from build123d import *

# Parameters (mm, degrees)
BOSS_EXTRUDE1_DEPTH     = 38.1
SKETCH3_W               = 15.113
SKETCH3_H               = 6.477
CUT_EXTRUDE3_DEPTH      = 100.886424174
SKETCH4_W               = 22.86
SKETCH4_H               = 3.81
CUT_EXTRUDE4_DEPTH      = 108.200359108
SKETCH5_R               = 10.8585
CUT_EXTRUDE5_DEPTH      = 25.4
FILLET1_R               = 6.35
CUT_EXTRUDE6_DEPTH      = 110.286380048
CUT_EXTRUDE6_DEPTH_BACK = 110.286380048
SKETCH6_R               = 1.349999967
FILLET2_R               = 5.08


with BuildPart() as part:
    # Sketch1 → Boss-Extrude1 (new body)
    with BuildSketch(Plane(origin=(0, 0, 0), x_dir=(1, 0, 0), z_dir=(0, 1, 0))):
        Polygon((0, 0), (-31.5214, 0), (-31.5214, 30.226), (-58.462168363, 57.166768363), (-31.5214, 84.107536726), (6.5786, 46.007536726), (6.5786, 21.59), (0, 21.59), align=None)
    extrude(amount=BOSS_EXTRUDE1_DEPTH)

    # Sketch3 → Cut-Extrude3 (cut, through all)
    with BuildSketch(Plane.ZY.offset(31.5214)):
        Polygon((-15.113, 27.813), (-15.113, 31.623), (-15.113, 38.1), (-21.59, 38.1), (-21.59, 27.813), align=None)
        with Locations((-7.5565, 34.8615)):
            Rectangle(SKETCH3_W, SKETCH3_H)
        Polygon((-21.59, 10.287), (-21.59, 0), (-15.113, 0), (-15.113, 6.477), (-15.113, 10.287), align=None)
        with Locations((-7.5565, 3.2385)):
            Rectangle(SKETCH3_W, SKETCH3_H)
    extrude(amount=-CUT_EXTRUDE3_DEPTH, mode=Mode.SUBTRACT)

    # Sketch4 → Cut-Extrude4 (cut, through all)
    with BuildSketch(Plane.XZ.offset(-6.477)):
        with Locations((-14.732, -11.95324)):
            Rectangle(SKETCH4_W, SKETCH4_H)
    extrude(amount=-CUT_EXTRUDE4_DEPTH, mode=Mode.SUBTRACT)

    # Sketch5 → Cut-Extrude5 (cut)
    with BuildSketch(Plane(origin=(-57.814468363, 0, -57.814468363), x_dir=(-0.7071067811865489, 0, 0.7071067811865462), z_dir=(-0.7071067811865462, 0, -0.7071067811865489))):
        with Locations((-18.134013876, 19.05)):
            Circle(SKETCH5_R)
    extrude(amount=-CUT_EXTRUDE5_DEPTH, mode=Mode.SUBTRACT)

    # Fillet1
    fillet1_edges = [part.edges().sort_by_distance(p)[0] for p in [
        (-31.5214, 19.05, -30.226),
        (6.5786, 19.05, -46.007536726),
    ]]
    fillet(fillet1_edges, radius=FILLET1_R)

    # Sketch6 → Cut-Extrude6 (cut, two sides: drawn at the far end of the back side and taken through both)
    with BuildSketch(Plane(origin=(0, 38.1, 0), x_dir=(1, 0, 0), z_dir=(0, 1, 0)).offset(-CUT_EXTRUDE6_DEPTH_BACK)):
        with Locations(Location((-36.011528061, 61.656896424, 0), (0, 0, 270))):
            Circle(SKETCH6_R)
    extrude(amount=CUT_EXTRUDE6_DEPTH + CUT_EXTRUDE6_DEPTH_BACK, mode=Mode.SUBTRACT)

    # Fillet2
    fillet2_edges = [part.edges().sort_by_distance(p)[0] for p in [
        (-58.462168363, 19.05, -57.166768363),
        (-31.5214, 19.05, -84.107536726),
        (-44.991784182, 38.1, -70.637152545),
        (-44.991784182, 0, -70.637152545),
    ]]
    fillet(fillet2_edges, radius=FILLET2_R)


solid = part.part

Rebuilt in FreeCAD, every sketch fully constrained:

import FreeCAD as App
import Part
import Sketcher

V = App.Vector
Q = App.Units.Quantity


def edges_at(feature, points):
    """Names of the edges that pass closest to the given points."""
    edges = feature.Shape.Edges
    near = lambda p: min(range(len(edges)), key=lambda i: edges[i].distToShape(Part.Vertex(*p))[0])
    return sorted({f"Edge{near(p) + 1}" for p in points})


def add_polygon(sketch, points):
    """Adds a closed chain of lines whose ends are joined by coincident constraints."""
    first, n = sketch.GeometryCount, len(points)
    for a, b in zip(points, points[1:] + points[:1]):
        sketch.addGeometry(Part.LineSegment(App.Vector(*a, 0), App.Vector(*b, 0)), False)
    for i in range(n):
        sketch.addConstraint(Sketcher.Constraint("Coincident", first + i, 2, first + (i + 1) % n, 1))

doc = App.newDocument("Part")
body = doc.addObject("PartDesign::Body", "Body")

# Sketch on XZ plane
sketch1 = body.newObject("Sketcher::SketchObject", "Sketch")
sketch1.AttachmentSupport = (doc.getObject("XZ_Plane"), [""])
sketch1.MapMode = "FlatFace"
add_polygon(sketch1, [(-31.5214, 0), (0, 0), (0, -21.59), (6.5786, -21.59), (6.5786, -46.007537), (-31.5214, -84.107537), (-58.462168, -57.166768), (-31.5214, -30.226)])  # lines 0-7
sketch1.addConstraint([
    Sketcher.Constraint("Horizontal", 0),
    Sketcher.Constraint("Vertical", 1),
    Sketcher.Constraint("Horizontal", 2),
    Sketcher.Constraint("Vertical", 3),
    Sketcher.Constraint("Vertical", 7),
    Sketcher.Constraint("Coincident", 0, 2, -1, 1),
    Sketcher.Constraint("Perpendicular", 4, 5),
    Sketcher.Constraint("Perpendicular", 5, 6),
    Sketcher.Constraint("Vertical", 4, 2, 6, 2),
    Sketcher.Constraint("Equal", 5, 6),
    Sketcher.Constraint("Distance", 5, Q("1.5 in")),
    Sketcher.Constraint("DistanceY", 1, 2, 1, 1, Q("0.85 in")),
    Sketcher.Constraint("DistanceY", 7, 1, 7, 2, Q("1.19 in")),
    Sketcher.Constraint("DistanceX", 4, 2, 3, 2, Q("1.5 in")),
    Sketcher.Constraint("DistanceX", 0, 1, 0, 2, Q("1.241 in")),
])
pad1 = body.newObject("PartDesign::Pad", "Pad")
pad1.Profile = sketch1
pad1.Length = Q("1.5 in")
pad1.Reversed = True

# Sketch on YZ plane
sketch2 = body.newObject("Sketcher::SketchObject", "Sketch001")
sketch2.AttachmentSupport = (doc.getObject("YZ_Plane"), [""])
sketch2.MapMode = "FlatFace"
sketch2.AttachmentOffset = App.Placement(V(0, 0, -1.241 * 25.4), App.Rotation())
add_polygon(sketch2, [(27.813, -15.113), (31.623, -15.113), (31.623, 0), (38.1, 0), (38.1, -21.59), (27.813, -21.59)])  # lines 0-5
add_polygon(sketch2, [(10.287, -21.59), (0, -21.59), (0, 0), (6.477, 0), (6.477, -15.113), (10.287, -15.113)])  # lines 6-11
sketch2.addConstraint([
    Sketcher.Constraint("Horizontal", 0),
    Sketcher.Constraint("Vertical", 1),
    Sketcher.Constraint("Horizontal", 2),
    Sketcher.Constraint("Vertical", 3),
    Sketcher.Constraint("Horizontal", 4),
    Sketcher.Constraint("Vertical", 5),
    Sketcher.Constraint("Horizontal", 6),
    Sketcher.Constraint("Vertical", 7),
    Sketcher.Constraint("Horizontal", 8),
    Sketcher.Constraint("Vertical", 9),
    Sketcher.Constraint("Horizontal", 10),
    Sketcher.Constraint("Vertical", 11),
    Sketcher.Constraint("Coincident", 7, 2, -1, 1),
    Sketcher.Constraint("PointOnObject", 1, 2, -1),
    Sketcher.Constraint("Horizontal", 4, 2, 6, 2),
    Sketcher.Constraint("Horizontal", 5, 2, 9, 2),
    Sketcher.Constraint("Equal", 4, 6),
    Sketcher.Constraint("Equal", 2, 8),
    Sketcher.Constraint("Equal", 8, 5),
    Sketcher.Constraint("DistanceX", 0, 1, 0, 2, Q("0.15 in")),
    Sketcher.Constraint("DistanceY", 3, 2, 3, 1, Q("0.85 in")),
    Sketcher.Constraint("DistanceX", -1, 1, 2, 2, Q("1.5 in")),
    Sketcher.Constraint("DistanceX", 2, 1, 2, 2, Q("0.255 in")),
])
pocket1 = body.newObject("PartDesign::Pocket", "Pocket")
pocket1.Profile = sketch2
pocket1.Type = "ThroughAll"
pocket1.Reversed = True

# Sketch on XZ plane
sketch3 = body.newObject("Sketcher::SketchObject", "Sketch002")
sketch3.AttachmentSupport = (doc.getObject("XZ_Plane"), [""])
sketch3.MapMode = "FlatFace"
sketch3.AttachmentOffset = App.Placement(V(0, 0, -0.255 * 25.4), App.Rotation())
add_polygon(sketch3, [(-26.162, -10.04824), (-26.162, -13.85824), (-3.302, -13.85824), (-3.302, -10.04824)])  # lines 0-3
sketch3.addConstraint([
    Sketcher.Constraint("Vertical", 0),
    Sketcher.Constraint("Horizontal", 1),
    Sketcher.Constraint("Vertical", 2),
    Sketcher.Constraint("Horizontal", 3),
    Sketcher.Constraint("DistanceX", 1, 1, 1, 2, Q("0.9 in")),
    Sketcher.Constraint("DistanceY", 0, 2, 0, 1, Q("0.15 in")),
    Sketcher.Constraint("DistanceX", 0, 2, -1, 1, Q("1.03 in")),
    Sketcher.Constraint("DistanceY", 0, 2, -1, 1, Q("0.5456 in")),
])
pocket2 = body.newObject("PartDesign::Pocket", "Pocket001")
pocket2.Profile = sketch3
pocket2.Type = "ThroughAll"

# Sketch on an angled plane
sketch4 = body.newObject("Sketcher::SketchObject", "Sketch003")
sketch4.Placement = App.Placement(V(-57.814468, 0, -57.814468), App.Rotation(V(-0.707106781, 0, 0.707106781), V(0, 0.999999999, 0), V(-0.707106781, 0, -0.707106781), "ZXY"))
sketch4.addGeometry(Part.Circle(V(-18.134014, 19.05, 0), V(0, 0, 1), 10.8585), False)
sketch4.addConstraint([
    Sketcher.Constraint("Diameter", 0, Q("0.855 in")),
    Sketcher.Constraint("DistanceY", -1, 1, 0, 3, Q("0.75 in")),
    Sketcher.Constraint("DistanceX", 0, 3, -1, 1, Q("18.134014 mm")),
])
pocket3 = body.newObject("PartDesign::Pocket", "Pocket002")
pocket3.Profile = sketch4
pocket3.Length = Q("1 in")
doc.recompute()

fillet = body.newObject("PartDesign::Fillet", "Fillet")
fillet.Base = (pocket3, edges_at(pocket3, [(-31.521, 19.05, -30.226), (6.579, 19.05, -46.008)]))
fillet.Radius = Q("0.25 in")

# Sketch on XZ plane
sketch5 = body.newObject("Sketcher::SketchObject", "Sketch004")
sketch5.AttachmentSupport = (doc.getObject("XZ_Plane"), [""])
sketch5.MapMode = "FlatFace"
sketch5.AttachmentOffset = App.Placement(V(0, 0, -1.5 * 25.4), App.Rotation())
sketch5.addGeometry(Part.Circle(V(-36.011528, -61.656896, 0), V(0, 0, 1), 1.35), False)
sketch5.addConstraint([
    Sketcher.Constraint("Diameter", 0, Q("2.7 mm")),
    Sketcher.Constraint("DistanceX", 0, 3, -1, 1, Q("36.011528 mm")),
    Sketcher.Constraint("DistanceY", 0, 3, -1, 1, Q("61.656896 mm")),
])
pocket4 = body.newObject("PartDesign::Pocket", "Pocket003")
pocket4.Profile = sketch5
pocket4.Type = "ThroughAll"
pocket4.Midplane = True
doc.recompute()

fillet2 = body.newObject("PartDesign::Fillet", "Fillet001")
fillet2.Base = (pocket4, edges_at(pocket4, [
    (-58.462, 19.05, -57.167),
    (-31.521, 19.05, -84.108),
    (-44.992, 38.1, -70.637),
    (-44.992, 0, -70.637),
]))
fillet2.Radius = Q("0.2 in")

doc.recompute()
